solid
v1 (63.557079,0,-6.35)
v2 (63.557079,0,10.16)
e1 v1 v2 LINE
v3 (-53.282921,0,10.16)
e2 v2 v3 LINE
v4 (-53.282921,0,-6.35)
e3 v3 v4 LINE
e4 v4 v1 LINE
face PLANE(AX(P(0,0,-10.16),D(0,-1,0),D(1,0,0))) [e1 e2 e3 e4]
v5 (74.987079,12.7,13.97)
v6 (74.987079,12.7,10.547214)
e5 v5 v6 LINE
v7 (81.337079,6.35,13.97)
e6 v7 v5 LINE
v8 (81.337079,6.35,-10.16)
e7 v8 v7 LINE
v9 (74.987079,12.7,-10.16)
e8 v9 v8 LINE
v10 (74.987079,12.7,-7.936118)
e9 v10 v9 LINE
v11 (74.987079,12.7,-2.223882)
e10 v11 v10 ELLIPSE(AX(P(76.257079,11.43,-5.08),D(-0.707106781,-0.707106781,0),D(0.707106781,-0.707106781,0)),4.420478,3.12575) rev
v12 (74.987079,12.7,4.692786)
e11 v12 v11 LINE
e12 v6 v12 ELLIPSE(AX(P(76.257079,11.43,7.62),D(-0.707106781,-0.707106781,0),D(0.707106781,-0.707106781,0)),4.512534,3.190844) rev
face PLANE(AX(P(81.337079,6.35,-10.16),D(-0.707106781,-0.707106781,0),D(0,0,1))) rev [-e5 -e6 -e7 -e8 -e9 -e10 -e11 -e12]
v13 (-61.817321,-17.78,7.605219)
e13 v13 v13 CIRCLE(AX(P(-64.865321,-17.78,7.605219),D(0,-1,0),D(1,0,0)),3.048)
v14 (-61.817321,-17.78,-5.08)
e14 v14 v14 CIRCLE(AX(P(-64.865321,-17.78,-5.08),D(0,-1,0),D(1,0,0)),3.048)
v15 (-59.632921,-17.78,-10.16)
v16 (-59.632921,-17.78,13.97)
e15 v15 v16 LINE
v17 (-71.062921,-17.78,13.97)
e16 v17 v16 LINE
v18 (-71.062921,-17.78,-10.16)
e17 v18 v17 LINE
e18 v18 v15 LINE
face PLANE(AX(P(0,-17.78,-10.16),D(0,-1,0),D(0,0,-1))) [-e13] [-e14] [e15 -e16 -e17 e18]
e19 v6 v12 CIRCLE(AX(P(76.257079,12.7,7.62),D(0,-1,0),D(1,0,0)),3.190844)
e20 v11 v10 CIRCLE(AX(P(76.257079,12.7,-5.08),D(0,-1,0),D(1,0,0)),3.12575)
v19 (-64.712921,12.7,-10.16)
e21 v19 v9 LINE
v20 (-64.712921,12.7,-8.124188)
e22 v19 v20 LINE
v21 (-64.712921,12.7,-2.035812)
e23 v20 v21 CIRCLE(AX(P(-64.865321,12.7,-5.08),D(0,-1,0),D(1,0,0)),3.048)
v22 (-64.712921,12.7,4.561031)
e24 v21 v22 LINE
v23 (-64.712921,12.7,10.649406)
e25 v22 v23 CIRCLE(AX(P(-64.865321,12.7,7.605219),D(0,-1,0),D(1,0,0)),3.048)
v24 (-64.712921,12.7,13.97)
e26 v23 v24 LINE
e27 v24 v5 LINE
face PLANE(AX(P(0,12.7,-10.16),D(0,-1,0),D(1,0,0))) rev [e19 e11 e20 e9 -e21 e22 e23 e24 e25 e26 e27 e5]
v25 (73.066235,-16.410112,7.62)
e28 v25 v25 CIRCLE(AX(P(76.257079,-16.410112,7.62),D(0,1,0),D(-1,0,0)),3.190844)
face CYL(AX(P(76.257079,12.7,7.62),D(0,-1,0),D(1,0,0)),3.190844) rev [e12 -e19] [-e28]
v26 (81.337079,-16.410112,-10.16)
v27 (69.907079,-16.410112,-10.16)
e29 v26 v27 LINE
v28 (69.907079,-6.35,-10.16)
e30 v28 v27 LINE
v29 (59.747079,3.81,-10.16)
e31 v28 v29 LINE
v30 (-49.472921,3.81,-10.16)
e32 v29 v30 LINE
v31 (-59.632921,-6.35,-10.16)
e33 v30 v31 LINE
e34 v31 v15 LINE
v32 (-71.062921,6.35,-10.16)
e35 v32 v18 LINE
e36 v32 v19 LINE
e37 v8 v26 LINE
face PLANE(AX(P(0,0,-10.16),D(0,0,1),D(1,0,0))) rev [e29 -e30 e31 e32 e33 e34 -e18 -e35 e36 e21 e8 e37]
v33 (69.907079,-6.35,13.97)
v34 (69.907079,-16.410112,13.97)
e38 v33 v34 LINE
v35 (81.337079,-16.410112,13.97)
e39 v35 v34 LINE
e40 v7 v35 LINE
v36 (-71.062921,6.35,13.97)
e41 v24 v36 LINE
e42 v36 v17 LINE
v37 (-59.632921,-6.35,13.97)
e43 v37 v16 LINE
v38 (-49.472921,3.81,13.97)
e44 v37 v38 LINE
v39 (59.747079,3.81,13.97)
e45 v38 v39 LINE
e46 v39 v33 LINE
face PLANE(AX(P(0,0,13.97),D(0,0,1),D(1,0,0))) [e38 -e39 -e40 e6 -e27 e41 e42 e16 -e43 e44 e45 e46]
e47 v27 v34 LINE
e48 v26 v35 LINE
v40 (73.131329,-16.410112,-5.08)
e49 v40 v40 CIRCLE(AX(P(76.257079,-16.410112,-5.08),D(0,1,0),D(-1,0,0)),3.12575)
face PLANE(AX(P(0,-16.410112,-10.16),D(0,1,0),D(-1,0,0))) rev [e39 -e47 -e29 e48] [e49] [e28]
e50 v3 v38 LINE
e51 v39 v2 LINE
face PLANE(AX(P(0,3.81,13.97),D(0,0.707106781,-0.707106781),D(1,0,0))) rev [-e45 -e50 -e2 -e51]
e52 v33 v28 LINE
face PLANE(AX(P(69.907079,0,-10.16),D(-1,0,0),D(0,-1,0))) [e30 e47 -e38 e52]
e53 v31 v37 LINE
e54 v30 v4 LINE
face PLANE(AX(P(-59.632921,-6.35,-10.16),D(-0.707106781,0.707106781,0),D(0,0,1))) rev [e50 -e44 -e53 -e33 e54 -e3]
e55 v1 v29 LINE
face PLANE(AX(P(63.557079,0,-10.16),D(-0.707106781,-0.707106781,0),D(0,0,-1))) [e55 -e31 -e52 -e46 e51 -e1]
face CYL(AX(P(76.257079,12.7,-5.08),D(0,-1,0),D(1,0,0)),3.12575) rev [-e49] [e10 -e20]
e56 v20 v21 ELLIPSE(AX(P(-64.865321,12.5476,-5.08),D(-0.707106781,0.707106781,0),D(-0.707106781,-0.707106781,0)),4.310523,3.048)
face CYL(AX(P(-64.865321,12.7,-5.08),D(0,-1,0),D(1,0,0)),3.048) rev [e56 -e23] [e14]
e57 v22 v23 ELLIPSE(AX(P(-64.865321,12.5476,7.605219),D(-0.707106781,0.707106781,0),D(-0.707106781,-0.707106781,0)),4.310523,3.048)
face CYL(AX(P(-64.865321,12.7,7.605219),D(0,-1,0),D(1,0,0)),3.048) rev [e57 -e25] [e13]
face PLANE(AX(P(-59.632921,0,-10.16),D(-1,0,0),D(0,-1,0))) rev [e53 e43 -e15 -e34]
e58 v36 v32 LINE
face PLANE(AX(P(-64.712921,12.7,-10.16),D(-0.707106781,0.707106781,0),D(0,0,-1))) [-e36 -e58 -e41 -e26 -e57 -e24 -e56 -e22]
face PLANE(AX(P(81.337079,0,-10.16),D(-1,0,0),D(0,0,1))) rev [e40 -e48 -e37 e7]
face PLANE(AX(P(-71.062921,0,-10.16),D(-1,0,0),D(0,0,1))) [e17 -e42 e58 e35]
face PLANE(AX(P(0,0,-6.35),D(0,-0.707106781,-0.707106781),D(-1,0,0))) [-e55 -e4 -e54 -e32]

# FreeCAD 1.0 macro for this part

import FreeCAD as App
import Part
import Sketcher
Q = App.Units.Quantity


def edges_at(feature, points):
    """Names of the edges that pass closest to the given points."""
    edges = feature.Shape.Edges
    near = lambda p: min(range(len(edges)), key=lambda i: edges[i].distToShape(Part.Vertex(*p))[0])
    return sorted({f"Edge{near(p) + 1}" for p in points})

doc = App.newDocument("Part")
body = doc.addObject("PartDesign::Body", "Body")

sketch1 = body.newObject("Sketcher::SketchObject", "Sketch")
sketch1.AttachmentSupport = (doc.getObject("XY_Plane"), [""])
sketch1.MapMode = "FlatFace"
sketch1.addGeometry([
    Part.LineSegment(App.Vector(-71, -18, 0), App.Vector(-60, -18, 0)),
    Part.LineSegment(App.Vector(-60, -18, 0), App.Vector(-60, 0, 0)),
    Part.LineSegment(App.Vector(-60, 0, 0), App.Vector(70, 0, 0)),
    Part.LineSegment(App.Vector(70, 0, 0), App.Vector(70, -16, 0)),
    Part.LineSegment(App.Vector(70, -16, 0), App.Vector(81, -16, 0)),
    Part.LineSegment(App.Vector(81, -16, 0), App.Vector(81, 13, 0)),
    Part.LineSegment(App.Vector(81, 13, 0), App.Vector(-71, 13, 0)),
    Part.LineSegment(App.Vector(-71, 13, 0), App.Vector(-71, -18, 0)),
], False)
sketch1.addConstraint([
    Sketcher.Constraint("Coincident", 0, 2, 1, 1),
    Sketcher.Constraint("Coincident", 1, 2, 2, 1),
    Sketcher.Constraint("Coincident", 2, 2, 3, 1),
    Sketcher.Constraint("Coincident", 3, 2, 4, 1),
    Sketcher.Constraint("Coincident", 4, 2, 5, 1),
    Sketcher.Constraint("Coincident", 5, 2, 6, 1),
    Sketcher.Constraint("Coincident", 6, 2, 7, 1),
    Sketcher.Constraint("Coincident", 7, 2, 0, 1),
    Sketcher.Constraint("Horizontal", 0),
    Sketcher.Constraint("Vertical", 1),
    Sketcher.Constraint("Horizontal", 2),
    Sketcher.Constraint("Vertical", 3),
    Sketcher.Constraint("Horizontal", 4),
    Sketcher.Constraint("Vertical", 5),
    Sketcher.Constraint("Horizontal", 6),
    Sketcher.Constraint("Vertical", 7),
    Sketcher.Constraint("PointOnObject", 1, 2, -1),
    Sketcher.Constraint("Equal", 0, 4),
    Sketcher.Constraint("DistanceX", 6, 2, 6, 1, Q("6 in")),
    Sketcher.Constraint("DistanceX", 2, 1, 2, 2, Q("5.1 in")),
    Sketcher.Constraint("DistanceY", 1, 1, 1, 2, Q("0.7 in")),
    Sketcher.Constraint("DistanceY", 7, 2, 7, 1, Q("1.2 in")),
    Sketcher.Constraint("DistanceY", 3, 2, 3, 1, 16.410112),
    Sketcher.Constraint("DistanceX", 0, 2, -1, 1, 59.632921),
])
pad1 = body.newObject("PartDesign::Pad", "Pad")
pad1.Profile = sketch1
pad1.Type = "TwoLengths"
pad1.Length = Q("0.55 in")
pad1.Length2 = Q("0.4 in")
doc.recompute()

chamfer = body.newObject("PartDesign::Chamfer", "Chamfer")
chamfer.Base = (pad1, edges_at(pad1, [
    (-71.063, 12.7, 1.905),
    (81.337, 12.7, 1.905),
    (69.907, 0, 1.905),
    (-59.633, 0, 1.905),
]))
chamfer.Size = Q("0.25 in")

sketch2 = body.newObject("Sketcher::SketchObject", "Sketch001")
sketch2.AttachmentSupport = (doc.getObject("XZ_Plane"), [""])
sketch2.MapMode = "FlatFace"
sketch2.AttachmentOffset = App.Placement(App.Vector(0, 0, 0.7 * 25.4), App.Rotation())
sketch2.addGeometry([
    Part.Circle(App.Vector(-64.9, 7.6, 0), App.Vector(0, 0, 1), 3),
    Part.Circle(App.Vector(-64.9, -5.1, 0), App.Vector(0, 0, 1), 3),
    Part.Circle(App.Vector(76.3, 7.6, 0), App.Vector(0, 0, 1), 3.2),
    Part.Circle(App.Vector(76.3, -5.1, 0), App.Vector(0, 0, 1), 3.1),
], False)
sketch2.addConstraint([
    Sketcher.Constraint("Equal", 0, 1),
    Sketcher.Constraint("Horizontal", 1, 3, 3, 3),
    Sketcher.Constraint("Vertical", 0, 3, 1, 3),
    Sketcher.Constraint("Vertical", 2, 3, 3, 3),
    Sketcher.Constraint("Diameter", 0, Q("0.24 in")),
    Sketcher.Constraint("DistanceY", 1, 3, -1, 1, Q("0.2 in")),
    Sketcher.Constraint("DistanceY", -1, 1, 2, 3, Q("0.3 in")),
    Sketcher.Constraint("Diameter", 3, 6.2515),
    Sketcher.Constraint("DistanceX", 0, 3, 2, 3, Q("5.556 in")),
    Sketcher.Constraint("Diameter", 2, 6.381687),
    Sketcher.Constraint("DistanceX", 0, 3, -1, 1, 64.865321),
    Sketcher.Constraint("DistanceY", -1, 1, 0, 3, 7.605219),
])
pocket1 = body.newObject("PartDesign::Pocket", "Pocket")
pocket1.Profile = sketch2
pocket1.Type = "ThroughAll"
doc.recompute()

chamfer2 = body.newObject("PartDesign::Chamfer", "Chamfer001")
chamfer2.Base = (pocket1, edges_at(pocket1, [(5.137, 0, 13.97), (5.137, 0, -10.16)]))
chamfer2.Size = Q("0.15 in")

doc.recompute()
